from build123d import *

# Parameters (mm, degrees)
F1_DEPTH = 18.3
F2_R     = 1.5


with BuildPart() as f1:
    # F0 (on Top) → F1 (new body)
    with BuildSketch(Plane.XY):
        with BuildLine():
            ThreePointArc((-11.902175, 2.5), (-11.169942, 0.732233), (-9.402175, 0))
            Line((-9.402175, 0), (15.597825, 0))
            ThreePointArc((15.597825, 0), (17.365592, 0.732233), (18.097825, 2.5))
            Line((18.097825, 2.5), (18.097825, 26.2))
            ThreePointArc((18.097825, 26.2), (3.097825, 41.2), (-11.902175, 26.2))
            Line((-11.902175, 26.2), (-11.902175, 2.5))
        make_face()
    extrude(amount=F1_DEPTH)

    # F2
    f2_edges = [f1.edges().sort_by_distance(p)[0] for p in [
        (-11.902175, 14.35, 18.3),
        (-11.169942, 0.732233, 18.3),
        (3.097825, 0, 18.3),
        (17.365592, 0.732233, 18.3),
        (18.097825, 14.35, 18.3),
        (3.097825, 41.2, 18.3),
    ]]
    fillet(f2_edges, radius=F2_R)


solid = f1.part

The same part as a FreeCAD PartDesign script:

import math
import FreeCAD as App
import Part
import Sketcher

V = App.Vector


def edges_at(feature, points):
    """Names of the edges that pass closest to the given points."""
    edges = feature.Shape.Edges
    near = lambda p: min(range(len(edges)), key=lambda i: edges[i].distToShape(Part.Vertex(*p))[0])
    return sorted({f"Edge{near(p) + 1}" for p in points})

doc = App.newDocument("Part")
body = doc.addObject("PartDesign::Body", "Body")

# Sketch on XY plane
sketch1 = doc.addObject("Sketcher::SketchObject", "Sketch")
body.addObject(sketch1)
sketch1.AttachmentSupport = (doc.XY_Plane, [""])
sketch1.MapMode = "FlatFace"
sketch1.addGeometry([
    Part.ArcOfCircle(Part.Circle(V(-9.402175, 2.5, 0), V(0, 0, 1), 2.5), math.radians(179.999996), math.radians(270.000004)),  # 0
    Part.LineSegment(V(-9.402175, 0, 0), V(15.597825, 0, 0)),  # 1
    Part.ArcOfCircle(Part.Circle(V(15.597825, 2.5, 0), V(0, 0, 1), 2.5), math.radians(-90.000004), math.radians(0.000004)),  # 2
    Part.LineSegment(V(18.097825, 2.5, 0), V(18.097825, 26.2, 0)),  # 3
    Part.ArcOfCircle(Part.Circle(V(3.097825, 26.2, 0), V(0, 0, 1), 15), math.radians(0), math.radians(180)),  # 4
    Part.LineSegment(V(-11.902175, 26.2, 0), V(-11.902175, 2.5, 0)),  # 5
], False)
sketch1.addConstraint([
    Sketcher.Constraint("Tangent", 0, 2, 1, 1),
    Sketcher.Constraint("Tangent", 1, 2, 2, 1),
    Sketcher.Constraint("Tangent", 2, 2, 3, 1),
    Sketcher.Constraint("Tangent", 3, 2, 4, 1),
    Sketcher.Constraint("Tangent", 4, 2, 5, 1),
    Sketcher.Constraint("Tangent", 5, 2, 0, 1),
    Sketcher.Constraint("Horizontal", 1),
    Sketcher.Constraint("Vertical", 3),
    Sketcher.Constraint("Vertical", 5),
    Sketcher.Constraint("Equal", 0, 2),
    Sketcher.Constraint("PointOnObject", 0, 2, -1),
    Sketcher.Constraint("Radius", 4, 15.0),
    Sketcher.Constraint("Radius", 0, 2.5),
    Sketcher.Constraint("DistanceY", 3, 1, 3, 2, 23.7),
    Sketcher.Constraint("DistanceX", 0, 3, -1, 1, 9.402175),
])
pad1 = doc.addObject("PartDesign::Pad", "Pad")
body.addObject(pad1)
pad1.Profile = sketch1
pad1.Length = 18.3
doc.recompute()

fillet = doc.addObject("PartDesign::Fillet", "Fillet")
body.addObject(fillet)
fillet.Base = (pad1, edges_at(pad1, [
    (-11.902, 14.35, 18.3),
    (-11.17, 0.732, 18.3),
    (3.098, 0, 18.3),
    (17.366, 0.732, 18.3),
    (18.098, 14.35, 18.3),
    (3.098, 41.2, 18.3),
]))
fillet.Radius = 1.5

doc.recompute()
